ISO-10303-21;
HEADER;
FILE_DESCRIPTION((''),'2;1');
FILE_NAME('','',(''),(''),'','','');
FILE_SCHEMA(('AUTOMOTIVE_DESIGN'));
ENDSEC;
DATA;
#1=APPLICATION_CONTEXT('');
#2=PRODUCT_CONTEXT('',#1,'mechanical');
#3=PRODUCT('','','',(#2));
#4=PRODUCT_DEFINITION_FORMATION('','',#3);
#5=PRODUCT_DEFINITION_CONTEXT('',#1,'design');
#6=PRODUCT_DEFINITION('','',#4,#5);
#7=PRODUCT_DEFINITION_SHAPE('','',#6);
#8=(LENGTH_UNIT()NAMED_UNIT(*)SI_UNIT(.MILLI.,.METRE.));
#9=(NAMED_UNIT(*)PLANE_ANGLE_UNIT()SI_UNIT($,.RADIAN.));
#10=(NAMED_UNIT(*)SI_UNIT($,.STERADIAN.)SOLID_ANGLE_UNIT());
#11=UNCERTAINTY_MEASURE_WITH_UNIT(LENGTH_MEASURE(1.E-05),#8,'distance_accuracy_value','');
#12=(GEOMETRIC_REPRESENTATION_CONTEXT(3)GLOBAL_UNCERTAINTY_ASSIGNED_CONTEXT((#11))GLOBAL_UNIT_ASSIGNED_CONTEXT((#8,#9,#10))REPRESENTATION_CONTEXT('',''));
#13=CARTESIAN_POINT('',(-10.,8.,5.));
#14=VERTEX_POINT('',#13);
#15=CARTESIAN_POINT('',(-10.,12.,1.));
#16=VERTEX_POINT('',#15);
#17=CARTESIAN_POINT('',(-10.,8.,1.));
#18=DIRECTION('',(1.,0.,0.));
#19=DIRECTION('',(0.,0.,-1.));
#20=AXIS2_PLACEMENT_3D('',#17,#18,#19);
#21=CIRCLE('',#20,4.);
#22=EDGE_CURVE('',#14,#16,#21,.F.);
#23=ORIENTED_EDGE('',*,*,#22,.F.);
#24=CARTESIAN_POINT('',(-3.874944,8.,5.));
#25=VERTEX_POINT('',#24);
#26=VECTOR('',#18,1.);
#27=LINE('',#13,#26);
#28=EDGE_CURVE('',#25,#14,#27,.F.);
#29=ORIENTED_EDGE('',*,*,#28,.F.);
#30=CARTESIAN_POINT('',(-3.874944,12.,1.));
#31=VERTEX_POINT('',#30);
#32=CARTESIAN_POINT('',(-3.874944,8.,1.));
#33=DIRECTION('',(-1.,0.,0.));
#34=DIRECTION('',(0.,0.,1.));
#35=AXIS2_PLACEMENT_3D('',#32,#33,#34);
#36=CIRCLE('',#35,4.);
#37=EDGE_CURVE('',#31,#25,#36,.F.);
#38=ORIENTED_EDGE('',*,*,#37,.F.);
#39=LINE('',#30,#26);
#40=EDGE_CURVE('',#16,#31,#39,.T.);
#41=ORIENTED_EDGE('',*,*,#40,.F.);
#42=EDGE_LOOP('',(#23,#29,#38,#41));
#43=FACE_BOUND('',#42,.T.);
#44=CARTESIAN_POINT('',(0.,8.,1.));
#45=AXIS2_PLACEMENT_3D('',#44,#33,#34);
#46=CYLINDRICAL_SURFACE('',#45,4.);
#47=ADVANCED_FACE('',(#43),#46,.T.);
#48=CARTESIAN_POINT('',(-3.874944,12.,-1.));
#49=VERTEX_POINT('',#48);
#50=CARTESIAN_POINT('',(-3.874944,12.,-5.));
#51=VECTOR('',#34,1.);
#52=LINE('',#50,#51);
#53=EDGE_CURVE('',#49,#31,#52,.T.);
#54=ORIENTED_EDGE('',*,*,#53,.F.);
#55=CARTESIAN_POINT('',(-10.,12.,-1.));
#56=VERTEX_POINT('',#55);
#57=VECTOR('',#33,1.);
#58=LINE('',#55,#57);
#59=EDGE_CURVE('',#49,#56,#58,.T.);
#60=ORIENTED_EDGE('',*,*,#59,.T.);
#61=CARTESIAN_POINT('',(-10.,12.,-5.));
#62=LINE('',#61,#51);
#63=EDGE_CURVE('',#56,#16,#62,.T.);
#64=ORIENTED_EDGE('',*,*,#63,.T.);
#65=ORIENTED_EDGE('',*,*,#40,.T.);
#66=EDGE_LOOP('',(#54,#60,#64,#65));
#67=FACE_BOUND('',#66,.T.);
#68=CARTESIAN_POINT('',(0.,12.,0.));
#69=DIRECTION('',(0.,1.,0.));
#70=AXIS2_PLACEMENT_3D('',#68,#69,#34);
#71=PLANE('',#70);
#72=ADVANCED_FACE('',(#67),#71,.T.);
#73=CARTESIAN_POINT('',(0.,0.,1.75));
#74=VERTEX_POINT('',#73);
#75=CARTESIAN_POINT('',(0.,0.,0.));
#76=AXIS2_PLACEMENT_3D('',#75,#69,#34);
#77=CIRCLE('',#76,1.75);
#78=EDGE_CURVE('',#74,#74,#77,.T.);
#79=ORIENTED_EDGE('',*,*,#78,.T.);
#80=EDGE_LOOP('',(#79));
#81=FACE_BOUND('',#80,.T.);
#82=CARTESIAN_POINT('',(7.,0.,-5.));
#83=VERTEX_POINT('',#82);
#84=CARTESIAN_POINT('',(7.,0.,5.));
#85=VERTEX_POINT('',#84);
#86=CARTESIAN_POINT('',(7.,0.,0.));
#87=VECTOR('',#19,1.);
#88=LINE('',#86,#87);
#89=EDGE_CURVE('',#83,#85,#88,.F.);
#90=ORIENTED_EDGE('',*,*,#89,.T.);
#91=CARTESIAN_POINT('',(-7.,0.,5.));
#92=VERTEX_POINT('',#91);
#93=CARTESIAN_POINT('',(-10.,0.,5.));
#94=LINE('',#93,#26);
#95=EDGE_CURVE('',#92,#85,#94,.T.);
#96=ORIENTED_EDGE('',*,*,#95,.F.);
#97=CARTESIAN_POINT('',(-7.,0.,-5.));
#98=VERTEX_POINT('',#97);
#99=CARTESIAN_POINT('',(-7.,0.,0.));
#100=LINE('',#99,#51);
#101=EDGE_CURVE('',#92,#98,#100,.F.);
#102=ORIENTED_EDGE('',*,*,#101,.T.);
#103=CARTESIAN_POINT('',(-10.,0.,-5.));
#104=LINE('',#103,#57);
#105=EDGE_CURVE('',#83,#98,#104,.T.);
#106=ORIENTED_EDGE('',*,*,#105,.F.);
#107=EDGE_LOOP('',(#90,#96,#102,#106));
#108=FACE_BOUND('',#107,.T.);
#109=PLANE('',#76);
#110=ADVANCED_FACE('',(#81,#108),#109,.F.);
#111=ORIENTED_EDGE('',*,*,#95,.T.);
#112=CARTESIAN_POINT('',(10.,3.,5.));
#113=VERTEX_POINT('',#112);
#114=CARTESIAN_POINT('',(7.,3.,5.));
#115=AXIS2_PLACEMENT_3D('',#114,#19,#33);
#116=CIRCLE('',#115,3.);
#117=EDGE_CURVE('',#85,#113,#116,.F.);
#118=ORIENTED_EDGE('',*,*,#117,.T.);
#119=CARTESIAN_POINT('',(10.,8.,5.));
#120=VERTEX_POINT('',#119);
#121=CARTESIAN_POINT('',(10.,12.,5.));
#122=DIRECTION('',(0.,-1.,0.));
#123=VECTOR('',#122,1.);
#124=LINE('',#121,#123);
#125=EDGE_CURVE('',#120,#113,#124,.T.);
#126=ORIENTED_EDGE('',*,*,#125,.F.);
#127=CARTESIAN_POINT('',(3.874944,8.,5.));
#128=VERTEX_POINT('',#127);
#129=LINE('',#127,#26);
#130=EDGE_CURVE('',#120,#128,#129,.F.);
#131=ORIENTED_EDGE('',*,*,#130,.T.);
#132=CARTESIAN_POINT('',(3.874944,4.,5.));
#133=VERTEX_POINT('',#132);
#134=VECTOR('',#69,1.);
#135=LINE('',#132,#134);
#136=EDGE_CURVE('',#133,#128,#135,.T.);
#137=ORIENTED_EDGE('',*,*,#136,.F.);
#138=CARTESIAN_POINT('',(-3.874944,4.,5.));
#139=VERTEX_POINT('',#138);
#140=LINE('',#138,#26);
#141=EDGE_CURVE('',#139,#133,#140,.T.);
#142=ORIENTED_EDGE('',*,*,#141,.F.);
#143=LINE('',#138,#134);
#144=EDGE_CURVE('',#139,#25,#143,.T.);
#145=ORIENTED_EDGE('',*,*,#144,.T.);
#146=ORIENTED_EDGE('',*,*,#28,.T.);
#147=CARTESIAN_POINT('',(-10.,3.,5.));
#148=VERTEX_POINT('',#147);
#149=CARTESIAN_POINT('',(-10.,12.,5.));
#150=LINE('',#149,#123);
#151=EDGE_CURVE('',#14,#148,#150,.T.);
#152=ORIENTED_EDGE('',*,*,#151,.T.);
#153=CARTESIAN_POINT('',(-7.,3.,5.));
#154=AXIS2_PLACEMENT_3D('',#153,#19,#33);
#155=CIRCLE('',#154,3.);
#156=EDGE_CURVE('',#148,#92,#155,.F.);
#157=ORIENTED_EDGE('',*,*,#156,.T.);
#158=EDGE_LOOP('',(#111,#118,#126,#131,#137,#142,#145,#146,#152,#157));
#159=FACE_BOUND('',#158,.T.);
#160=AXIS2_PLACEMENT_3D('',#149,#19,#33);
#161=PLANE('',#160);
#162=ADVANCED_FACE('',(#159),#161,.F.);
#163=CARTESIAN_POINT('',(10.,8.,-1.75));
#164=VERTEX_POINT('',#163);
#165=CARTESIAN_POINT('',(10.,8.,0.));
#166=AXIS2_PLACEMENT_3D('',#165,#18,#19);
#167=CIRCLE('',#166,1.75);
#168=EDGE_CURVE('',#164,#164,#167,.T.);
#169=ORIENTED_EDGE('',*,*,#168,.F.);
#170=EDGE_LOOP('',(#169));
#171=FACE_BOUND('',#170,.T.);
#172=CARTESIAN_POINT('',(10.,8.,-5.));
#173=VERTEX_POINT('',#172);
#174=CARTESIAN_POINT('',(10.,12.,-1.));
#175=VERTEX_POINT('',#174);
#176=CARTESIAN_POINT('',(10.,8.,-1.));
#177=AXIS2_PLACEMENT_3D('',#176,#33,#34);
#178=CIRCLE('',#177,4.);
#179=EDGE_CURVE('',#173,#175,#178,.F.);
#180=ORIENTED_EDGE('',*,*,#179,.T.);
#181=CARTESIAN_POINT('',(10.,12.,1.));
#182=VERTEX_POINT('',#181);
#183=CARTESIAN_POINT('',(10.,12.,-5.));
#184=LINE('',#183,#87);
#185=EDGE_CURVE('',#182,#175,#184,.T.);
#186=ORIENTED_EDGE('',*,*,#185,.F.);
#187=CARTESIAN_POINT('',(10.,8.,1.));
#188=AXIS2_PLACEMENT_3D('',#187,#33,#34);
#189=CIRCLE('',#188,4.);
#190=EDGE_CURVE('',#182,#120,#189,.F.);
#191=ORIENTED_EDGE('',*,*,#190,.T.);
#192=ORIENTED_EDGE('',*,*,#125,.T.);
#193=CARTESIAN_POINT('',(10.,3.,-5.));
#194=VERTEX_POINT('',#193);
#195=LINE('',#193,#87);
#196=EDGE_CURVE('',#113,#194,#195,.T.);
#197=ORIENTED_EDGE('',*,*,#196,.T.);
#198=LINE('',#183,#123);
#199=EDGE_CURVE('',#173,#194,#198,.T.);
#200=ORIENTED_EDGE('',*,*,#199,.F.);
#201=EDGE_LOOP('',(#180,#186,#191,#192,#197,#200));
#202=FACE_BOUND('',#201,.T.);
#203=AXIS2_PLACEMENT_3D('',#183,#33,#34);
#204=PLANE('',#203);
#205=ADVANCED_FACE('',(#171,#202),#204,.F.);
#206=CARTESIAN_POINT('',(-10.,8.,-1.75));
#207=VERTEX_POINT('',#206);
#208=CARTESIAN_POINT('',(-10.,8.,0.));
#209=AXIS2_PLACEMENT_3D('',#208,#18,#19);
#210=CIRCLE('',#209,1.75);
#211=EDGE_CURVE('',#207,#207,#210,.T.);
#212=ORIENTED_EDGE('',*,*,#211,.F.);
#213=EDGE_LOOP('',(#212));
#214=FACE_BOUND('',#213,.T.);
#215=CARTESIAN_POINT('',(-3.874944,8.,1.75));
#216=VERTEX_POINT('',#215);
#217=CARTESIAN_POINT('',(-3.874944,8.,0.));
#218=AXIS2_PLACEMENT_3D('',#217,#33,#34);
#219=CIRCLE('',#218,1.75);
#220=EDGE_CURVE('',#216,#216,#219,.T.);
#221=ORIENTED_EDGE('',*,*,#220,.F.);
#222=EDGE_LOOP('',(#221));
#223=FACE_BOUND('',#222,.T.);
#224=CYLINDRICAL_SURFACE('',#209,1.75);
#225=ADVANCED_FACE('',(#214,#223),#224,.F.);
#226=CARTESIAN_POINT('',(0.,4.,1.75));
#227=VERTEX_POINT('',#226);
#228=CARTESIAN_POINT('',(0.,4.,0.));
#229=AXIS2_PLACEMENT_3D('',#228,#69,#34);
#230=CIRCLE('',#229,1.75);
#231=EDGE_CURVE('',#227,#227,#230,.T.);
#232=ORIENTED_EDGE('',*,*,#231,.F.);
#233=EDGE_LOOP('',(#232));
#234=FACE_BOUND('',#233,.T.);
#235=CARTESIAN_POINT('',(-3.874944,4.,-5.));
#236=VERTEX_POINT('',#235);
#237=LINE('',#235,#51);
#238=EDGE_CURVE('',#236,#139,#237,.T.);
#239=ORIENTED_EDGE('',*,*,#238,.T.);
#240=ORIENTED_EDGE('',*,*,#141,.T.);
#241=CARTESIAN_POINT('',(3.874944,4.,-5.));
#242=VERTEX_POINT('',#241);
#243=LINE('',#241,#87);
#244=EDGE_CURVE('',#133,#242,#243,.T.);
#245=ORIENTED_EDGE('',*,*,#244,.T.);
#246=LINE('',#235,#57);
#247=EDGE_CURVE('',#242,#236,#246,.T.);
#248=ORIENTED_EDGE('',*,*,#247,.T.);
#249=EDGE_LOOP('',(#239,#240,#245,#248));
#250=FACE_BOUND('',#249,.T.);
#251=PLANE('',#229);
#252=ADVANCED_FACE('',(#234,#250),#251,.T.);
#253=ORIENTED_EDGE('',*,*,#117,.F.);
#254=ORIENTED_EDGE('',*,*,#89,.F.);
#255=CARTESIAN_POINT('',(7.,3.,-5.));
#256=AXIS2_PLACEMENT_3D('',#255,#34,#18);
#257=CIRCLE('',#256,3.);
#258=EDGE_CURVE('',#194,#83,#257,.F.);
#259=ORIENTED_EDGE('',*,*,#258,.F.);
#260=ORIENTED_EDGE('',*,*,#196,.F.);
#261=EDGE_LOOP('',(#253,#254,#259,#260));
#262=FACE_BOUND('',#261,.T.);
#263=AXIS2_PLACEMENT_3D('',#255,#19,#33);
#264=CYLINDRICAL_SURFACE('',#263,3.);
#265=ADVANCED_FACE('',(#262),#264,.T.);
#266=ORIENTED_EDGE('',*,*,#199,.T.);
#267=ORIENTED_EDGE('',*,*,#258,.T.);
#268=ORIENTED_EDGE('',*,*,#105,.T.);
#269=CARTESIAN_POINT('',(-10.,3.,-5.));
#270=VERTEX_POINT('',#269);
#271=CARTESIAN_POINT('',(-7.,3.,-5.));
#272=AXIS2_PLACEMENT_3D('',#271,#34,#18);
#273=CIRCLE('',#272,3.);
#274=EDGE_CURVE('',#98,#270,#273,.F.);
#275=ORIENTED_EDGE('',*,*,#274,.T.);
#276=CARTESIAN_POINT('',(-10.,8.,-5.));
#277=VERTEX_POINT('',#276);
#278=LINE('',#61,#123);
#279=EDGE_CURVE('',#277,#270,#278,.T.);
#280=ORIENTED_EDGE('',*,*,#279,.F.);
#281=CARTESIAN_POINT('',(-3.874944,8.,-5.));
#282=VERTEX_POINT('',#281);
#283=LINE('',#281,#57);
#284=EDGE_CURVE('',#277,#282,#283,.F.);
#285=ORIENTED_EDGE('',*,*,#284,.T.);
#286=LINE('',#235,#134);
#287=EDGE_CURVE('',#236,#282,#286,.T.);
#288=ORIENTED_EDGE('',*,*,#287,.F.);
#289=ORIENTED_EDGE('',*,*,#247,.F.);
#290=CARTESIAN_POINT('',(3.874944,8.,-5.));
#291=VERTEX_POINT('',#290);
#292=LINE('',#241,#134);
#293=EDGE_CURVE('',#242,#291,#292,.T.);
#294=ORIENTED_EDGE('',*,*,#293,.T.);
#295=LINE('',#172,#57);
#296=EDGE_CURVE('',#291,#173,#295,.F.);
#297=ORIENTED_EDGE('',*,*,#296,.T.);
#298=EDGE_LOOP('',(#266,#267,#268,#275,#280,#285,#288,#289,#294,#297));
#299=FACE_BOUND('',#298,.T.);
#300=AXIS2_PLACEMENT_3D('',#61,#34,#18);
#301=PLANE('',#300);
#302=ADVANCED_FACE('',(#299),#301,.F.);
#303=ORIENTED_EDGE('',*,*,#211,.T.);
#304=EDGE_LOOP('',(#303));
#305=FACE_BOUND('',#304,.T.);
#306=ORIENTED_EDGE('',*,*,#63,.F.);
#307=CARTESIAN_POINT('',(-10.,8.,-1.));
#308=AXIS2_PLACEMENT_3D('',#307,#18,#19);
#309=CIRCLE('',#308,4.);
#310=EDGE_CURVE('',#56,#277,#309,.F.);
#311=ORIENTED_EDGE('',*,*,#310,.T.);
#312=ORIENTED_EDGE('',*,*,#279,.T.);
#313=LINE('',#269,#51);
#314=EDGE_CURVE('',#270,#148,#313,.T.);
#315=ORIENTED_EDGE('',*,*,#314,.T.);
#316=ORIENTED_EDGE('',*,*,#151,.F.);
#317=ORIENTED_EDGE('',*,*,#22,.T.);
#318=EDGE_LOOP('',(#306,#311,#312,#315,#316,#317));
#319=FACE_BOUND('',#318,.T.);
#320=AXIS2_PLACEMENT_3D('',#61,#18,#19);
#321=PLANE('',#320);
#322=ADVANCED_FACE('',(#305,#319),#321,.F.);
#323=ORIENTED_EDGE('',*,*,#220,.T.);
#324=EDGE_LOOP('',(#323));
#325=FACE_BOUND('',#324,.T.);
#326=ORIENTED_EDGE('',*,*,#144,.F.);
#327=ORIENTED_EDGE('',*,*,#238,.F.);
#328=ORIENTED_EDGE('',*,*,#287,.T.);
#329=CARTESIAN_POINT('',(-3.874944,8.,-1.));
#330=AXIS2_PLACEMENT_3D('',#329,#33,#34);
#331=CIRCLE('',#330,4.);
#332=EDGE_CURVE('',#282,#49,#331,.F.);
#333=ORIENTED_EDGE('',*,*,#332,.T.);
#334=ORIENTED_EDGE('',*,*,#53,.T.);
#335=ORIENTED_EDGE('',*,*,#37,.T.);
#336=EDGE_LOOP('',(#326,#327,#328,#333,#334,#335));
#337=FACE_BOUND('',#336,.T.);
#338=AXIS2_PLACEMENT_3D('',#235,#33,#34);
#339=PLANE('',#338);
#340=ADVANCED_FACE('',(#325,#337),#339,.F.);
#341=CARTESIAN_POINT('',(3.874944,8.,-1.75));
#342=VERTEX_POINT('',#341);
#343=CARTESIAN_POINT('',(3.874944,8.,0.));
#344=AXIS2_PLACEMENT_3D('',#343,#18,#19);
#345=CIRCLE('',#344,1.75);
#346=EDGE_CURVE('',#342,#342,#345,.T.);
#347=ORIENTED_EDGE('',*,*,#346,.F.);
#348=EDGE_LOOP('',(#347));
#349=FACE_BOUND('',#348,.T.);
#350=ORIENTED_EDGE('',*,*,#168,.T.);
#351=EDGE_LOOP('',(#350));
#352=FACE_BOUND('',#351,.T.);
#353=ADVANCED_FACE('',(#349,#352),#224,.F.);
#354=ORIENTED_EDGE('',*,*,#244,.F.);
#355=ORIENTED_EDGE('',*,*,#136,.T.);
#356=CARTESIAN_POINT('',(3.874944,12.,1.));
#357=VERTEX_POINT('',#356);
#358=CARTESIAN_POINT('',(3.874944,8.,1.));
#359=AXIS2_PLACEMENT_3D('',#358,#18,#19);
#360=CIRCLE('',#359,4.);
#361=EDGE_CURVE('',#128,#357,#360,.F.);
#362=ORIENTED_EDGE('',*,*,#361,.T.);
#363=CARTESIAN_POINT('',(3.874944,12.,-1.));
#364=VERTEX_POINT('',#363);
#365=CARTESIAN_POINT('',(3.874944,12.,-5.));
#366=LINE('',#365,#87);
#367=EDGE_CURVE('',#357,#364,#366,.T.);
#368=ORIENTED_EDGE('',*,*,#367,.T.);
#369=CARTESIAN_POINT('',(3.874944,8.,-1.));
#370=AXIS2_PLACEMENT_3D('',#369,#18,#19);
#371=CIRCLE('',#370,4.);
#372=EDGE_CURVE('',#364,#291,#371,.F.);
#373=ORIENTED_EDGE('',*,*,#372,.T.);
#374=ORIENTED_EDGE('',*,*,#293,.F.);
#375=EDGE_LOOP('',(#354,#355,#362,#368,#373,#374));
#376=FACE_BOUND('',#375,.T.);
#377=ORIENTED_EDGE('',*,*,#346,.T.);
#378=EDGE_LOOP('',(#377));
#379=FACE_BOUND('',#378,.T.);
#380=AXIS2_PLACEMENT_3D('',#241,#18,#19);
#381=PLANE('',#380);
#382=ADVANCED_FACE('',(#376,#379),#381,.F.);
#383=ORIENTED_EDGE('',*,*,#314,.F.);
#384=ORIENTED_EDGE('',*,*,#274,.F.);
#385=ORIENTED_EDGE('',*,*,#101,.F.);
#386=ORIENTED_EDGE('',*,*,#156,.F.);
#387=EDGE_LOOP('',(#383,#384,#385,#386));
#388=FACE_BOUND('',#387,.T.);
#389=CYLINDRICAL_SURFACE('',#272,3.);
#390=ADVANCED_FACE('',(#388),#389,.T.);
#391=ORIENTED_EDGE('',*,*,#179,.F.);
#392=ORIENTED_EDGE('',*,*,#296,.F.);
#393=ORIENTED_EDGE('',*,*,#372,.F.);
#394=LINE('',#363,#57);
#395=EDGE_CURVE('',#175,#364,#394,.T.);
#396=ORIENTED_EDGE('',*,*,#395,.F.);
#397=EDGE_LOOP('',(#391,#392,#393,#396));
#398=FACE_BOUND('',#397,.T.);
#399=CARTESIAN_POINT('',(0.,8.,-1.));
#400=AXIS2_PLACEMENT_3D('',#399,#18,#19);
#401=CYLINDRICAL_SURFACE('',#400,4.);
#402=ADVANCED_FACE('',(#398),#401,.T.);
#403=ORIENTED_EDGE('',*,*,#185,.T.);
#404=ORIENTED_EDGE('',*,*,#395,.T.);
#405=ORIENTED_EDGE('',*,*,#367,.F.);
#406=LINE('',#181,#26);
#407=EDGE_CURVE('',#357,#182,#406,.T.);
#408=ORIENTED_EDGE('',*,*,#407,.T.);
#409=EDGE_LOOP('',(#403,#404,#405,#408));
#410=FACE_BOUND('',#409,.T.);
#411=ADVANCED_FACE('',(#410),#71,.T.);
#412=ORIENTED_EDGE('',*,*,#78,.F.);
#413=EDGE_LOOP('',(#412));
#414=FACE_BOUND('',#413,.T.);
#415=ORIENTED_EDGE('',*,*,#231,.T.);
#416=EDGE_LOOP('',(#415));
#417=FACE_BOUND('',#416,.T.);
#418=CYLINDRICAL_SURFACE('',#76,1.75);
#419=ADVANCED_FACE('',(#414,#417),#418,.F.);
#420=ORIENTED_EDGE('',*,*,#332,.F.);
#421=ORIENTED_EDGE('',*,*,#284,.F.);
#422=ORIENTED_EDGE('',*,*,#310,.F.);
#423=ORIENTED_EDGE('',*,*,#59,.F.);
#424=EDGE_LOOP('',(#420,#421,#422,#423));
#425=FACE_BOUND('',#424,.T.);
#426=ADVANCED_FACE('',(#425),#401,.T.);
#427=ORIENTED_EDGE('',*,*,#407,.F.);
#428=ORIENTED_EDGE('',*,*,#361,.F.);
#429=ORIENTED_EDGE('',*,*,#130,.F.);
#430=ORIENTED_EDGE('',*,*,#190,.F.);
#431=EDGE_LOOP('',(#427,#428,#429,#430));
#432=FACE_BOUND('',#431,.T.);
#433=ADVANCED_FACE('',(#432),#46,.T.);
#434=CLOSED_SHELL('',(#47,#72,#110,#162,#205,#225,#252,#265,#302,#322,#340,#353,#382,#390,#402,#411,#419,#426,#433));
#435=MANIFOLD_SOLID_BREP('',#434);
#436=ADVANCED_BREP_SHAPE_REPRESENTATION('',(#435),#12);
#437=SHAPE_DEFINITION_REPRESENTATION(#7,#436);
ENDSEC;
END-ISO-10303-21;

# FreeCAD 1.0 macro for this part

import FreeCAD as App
import Part
import Sketcher
from FreeCAD import Vector
Q = App.Units.Quantity


def edges_at(feature, points):
    """Names of the edges that pass closest to the given points."""
    edges = feature.Shape.Edges
    near = lambda p: min(range(len(edges)), key=lambda i: edges[i].distToShape(Part.Vertex(*p))[0])
    return sorted({f"Edge{near(p) + 1}" for p in points})


def add_polygon(sketch, points):
    """Adds a closed chain of lines whose ends are joined by coincident constraints."""
    first, n = sketch.GeometryCount, len(points)
    for a, b in zip(points, points[1:] + points[:1]):
        sketch.addGeometry(Part.LineSegment(App.Vector(*a, 0), App.Vector(*b, 0)), False)
    for i in range(n):
        sketch.addConstraint(Sketcher.Constraint("Coincident", first + i, 2, first + (i + 1) % n, 1))

doc = App.newDocument("Part")
body = doc.addObject("PartDesign::Body", "Body")

# Sketch on XZ plane
sketch1 = body.newObject("Sketcher::SketchObject", "Sketch")
sketch1.AttachmentSupport = (doc.getObject("XZ_Plane"), [""])
sketch1.MapMode = "FlatFace"
add_polygon(sketch1, [(-10, -5), (-10, 5), (10, 5), (10, -5)])  # lines 0-3
sketch1.addConstraint(Sketcher.Constraint("Vertical", 0))
sketch1.addConstraint(Sketcher.Constraint("Horizontal", 1))
sketch1.addConstraint(Sketcher.Constraint("Vertical", 2))
sketch1.addConstraint(Sketcher.Constraint("Horizontal", 3))
sketch1.addConstraint(Sketcher.Constraint("Symmetric", 0, 2, 2, 2, -1, 1))
sketch1.addConstraint(Sketcher.Constraint("DistanceX", 1, 1, 1, 2, Q("20 mm")))
sketch1.addConstraint(Sketcher.Constraint("DistanceY", 0, 1, 0, 2, Q("10 mm")))
pad1 = body.newObject("PartDesign::Pad", "Pad")
pad1.Profile = sketch1
pad1.Length = 12
pad1.Reversed = True

# Sketch on XZ plane
sketch2 = body.newObject("Sketcher::SketchObject", "Sketch001")
sketch2.AttachmentSupport = (doc.getObject("XZ_Plane"), [""])
sketch2.MapMode = "FlatFace"
sketch2.AttachmentOffset = App.Placement(Vector(0, 0, -12), App.Rotation())
add_polygon(sketch2, [(-3.874944, -5), (-3.874944, 5), (3.874944, 5), (3.874944, -5)])  # lines 0-3
sketch2.addConstraint(Sketcher.Constraint("Vertical", 0))
sketch2.addConstraint(Sketcher.Constraint("Horizontal", 1))
sketch2.addConstraint(Sketcher.Constraint("Vertical", 2))
sketch2.addConstraint(Sketcher.Constraint("Horizontal", 3))
sketch2.addConstraint(Sketcher.Constraint("Symmetric", 0, 2, 2, 2, -1, 1))
sketch2.addConstraint(Sketcher.Constraint("DistanceY", 0, 1, 0, 2, Q("10 mm")))
sketch2.addConstraint(Sketcher.Constraint("DistanceX", 1, 1, 1, 2, Q("7.749887 mm")))
pocket1 = body.newObject("PartDesign::Pocket", "Pocket")
pocket1.Profile = sketch2
pocket1.Length = 8
pocket1.Reversed = True
doc.recompute()

fillet = body.newObject("PartDesign::Fillet", "Fillet")
fillet.Base = (pocket1, edges_at(pocket1, [
    (-6.937, 12, -5),
    (6.937, 12, 5),
    (-6.937, 12, 5),
    (6.937, 12, -5),
]))
fillet.Radius = 4

# Sketch on YZ plane
sketch3 = body.newObject("Sketcher::SketchObject", "Sketch002")
sketch3.AttachmentSupport = (doc.getObject("YZ_Plane"), [""])
sketch3.MapMode = "FlatFace"
sketch3.AttachmentOffset = App.Placement(Vector(0, 0, 10), App.Rotation())
sketch3.addGeometry(Part.Circle(Vector(8, 0, 0), Vector(0, 0, 1), 1.75), False)
sketch3.addConstraint(Sketcher.Constraint("PointOnObject", 0, 3, -1))
sketch3.addConstraint(Sketcher.Constraint("Diameter", 0, Q("3.5 mm")))
sketch3.addConstraint(Sketcher.Constraint("DistanceX", -1, 1, 0, 3, Q("8 mm")))
pocket2 = body.newObject("PartDesign::Pocket", "Pocket001")
pocket2.Profile = sketch3
pocket2.Type = "ThroughAll"
doc.recompute()

fillet2 = body.newObject("PartDesign::Fillet", "Fillet001")
fillet2.Base = (pocket2, edges_at(pocket2, [(-10, 0, 0), (10, 0, 0)]))
fillet2.Radius = 3

# Sketch on XZ plane
sketch4 = body.newObject("Sketcher::SketchObject", "Sketch003")
sketch4.AttachmentSupport = (doc.getObject("XZ_Plane"), [""])
sketch4.MapMode = "FlatFace"
sketch4.AttachmentOffset = App.Placement(Vector(0, 0, -4), App.Rotation())
sketch4.addGeometry(Part.Circle(Vector(0, 0, 0), Vector(0, 0, 1), 1.75), False)
sketch4.addConstraint(Sketcher.Constraint("Coincident", 0, 3, -1, 1))
sketch4.addConstraint(Sketcher.Constraint("Diameter", 0, Q("3.5 mm")))
pocket3 = body.newObject("PartDesign::Pocket", "Pocket002")
pocket3.Profile = sketch4
pocket3.Type = "ThroughAll"
pocket3.Reversed = True

doc.recompute()
